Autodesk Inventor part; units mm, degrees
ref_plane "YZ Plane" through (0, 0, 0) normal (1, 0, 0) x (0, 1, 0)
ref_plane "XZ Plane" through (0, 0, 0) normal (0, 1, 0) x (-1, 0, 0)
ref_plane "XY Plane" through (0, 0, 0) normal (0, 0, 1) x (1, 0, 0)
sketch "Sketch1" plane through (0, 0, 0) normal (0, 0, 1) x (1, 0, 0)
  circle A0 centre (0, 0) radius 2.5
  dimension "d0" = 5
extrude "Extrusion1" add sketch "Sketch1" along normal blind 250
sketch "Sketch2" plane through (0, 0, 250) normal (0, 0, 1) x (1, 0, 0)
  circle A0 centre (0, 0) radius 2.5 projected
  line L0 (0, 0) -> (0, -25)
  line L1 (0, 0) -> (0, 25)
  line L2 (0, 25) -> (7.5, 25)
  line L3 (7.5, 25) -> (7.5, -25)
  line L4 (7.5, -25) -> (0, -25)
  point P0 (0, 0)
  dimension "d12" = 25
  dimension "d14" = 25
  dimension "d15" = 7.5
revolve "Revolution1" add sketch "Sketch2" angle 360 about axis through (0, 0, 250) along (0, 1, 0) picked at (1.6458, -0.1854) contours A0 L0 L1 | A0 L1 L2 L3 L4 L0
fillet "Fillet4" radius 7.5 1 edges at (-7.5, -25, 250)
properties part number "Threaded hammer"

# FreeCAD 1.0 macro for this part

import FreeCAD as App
import Part
import Sketcher
from FreeCAD import Vector
Q = App.Units.Quantity


def edges_at(feature, points):
    """Names of the edges that pass closest to the given points."""
    edges = feature.Shape.Edges
    near = lambda p: min(range(len(edges)), key=lambda i: edges[i].distToShape(Part.Vertex(*p))[0])
    return sorted({f"Edge{near(p) + 1}" for p in points})

doc = App.newDocument("Part")
body = doc.addObject("PartDesign::Body", "Body")

sketch1 = body.newObject("Sketcher::SketchObject", "Sketch")
sketch1.AttachmentSupport = (doc.getObject("XY_Plane"), [""])
sketch1.MapMode = "FlatFace"
sketch1.addGeometry(Part.Circle(Vector(0, 0, 0), Vector(0, 0, 1), 2.5), False)
sketch1.addConstraint([
    Sketcher.Constraint("Coincident", 0, 3, -1, 1),
    Sketcher.Constraint("Diameter", 0, Q("5 mm")),
])
pad1 = body.newObject("PartDesign::Pad", "Pad")
pad1.Profile = sketch1
pad1.Length = 250

sketch2 = body.newObject("Sketcher::SketchObject", "Sketch001")
sketch2.AttachmentSupport = (doc.getObject("XY_Plane"), [""])
sketch2.MapMode = "FlatFace"
sketch2.AttachmentOffset = App.Placement(Vector(0, 0, 250), App.Rotation())
sketch2.addGeometry([
    Part.LineSegment(Vector(0, -25, 0), Vector(7.5, -25, 0)),
    Part.LineSegment(Vector(7.5, -25, 0), Vector(7.5, 25, 0)),
    Part.LineSegment(Vector(7.5, 25, 0), Vector(0, 25, 0)),
    Part.LineSegment(Vector(0, 25, 0), Vector(0, -25, 0)),
], False)
sketch2.addConstraint([
    Sketcher.Constraint("Coincident", 0, 2, 1, 1),
    Sketcher.Constraint("Coincident", 1, 2, 2, 1),
    Sketcher.Constraint("Coincident", 2, 2, 3, 1),
    Sketcher.Constraint("Coincident", 3, 2, 0, 1),
    Sketcher.Constraint("Horizontal", 0),
    Sketcher.Constraint("Vertical", 1),
    Sketcher.Constraint("Horizontal", 2),
    Sketcher.Constraint("Vertical", 3),
    Sketcher.Constraint("Symmetric", 2, 2, 3, 2, -1, 1),
    Sketcher.Constraint("DistanceX", 0, 1, 0, 2, Q("7.5 mm")),
    Sketcher.Constraint("DistanceY", 0, 2, -1, 1, Q("25 mm")),
])
revolution = body.newObject("PartDesign::Revolution", "Revolution")
revolution.Profile = sketch2
revolution.ReferenceAxis = (sketch2, ["V_Axis"])
revolution.Angle = 360
doc.recompute()

fillet = body.newObject("PartDesign::Fillet", "Fillet")
fillet.Base = (revolution, edges_at(revolution, [(-7.5, -25, 250)]))
fillet.Radius = 7.5

doc.recompute()
